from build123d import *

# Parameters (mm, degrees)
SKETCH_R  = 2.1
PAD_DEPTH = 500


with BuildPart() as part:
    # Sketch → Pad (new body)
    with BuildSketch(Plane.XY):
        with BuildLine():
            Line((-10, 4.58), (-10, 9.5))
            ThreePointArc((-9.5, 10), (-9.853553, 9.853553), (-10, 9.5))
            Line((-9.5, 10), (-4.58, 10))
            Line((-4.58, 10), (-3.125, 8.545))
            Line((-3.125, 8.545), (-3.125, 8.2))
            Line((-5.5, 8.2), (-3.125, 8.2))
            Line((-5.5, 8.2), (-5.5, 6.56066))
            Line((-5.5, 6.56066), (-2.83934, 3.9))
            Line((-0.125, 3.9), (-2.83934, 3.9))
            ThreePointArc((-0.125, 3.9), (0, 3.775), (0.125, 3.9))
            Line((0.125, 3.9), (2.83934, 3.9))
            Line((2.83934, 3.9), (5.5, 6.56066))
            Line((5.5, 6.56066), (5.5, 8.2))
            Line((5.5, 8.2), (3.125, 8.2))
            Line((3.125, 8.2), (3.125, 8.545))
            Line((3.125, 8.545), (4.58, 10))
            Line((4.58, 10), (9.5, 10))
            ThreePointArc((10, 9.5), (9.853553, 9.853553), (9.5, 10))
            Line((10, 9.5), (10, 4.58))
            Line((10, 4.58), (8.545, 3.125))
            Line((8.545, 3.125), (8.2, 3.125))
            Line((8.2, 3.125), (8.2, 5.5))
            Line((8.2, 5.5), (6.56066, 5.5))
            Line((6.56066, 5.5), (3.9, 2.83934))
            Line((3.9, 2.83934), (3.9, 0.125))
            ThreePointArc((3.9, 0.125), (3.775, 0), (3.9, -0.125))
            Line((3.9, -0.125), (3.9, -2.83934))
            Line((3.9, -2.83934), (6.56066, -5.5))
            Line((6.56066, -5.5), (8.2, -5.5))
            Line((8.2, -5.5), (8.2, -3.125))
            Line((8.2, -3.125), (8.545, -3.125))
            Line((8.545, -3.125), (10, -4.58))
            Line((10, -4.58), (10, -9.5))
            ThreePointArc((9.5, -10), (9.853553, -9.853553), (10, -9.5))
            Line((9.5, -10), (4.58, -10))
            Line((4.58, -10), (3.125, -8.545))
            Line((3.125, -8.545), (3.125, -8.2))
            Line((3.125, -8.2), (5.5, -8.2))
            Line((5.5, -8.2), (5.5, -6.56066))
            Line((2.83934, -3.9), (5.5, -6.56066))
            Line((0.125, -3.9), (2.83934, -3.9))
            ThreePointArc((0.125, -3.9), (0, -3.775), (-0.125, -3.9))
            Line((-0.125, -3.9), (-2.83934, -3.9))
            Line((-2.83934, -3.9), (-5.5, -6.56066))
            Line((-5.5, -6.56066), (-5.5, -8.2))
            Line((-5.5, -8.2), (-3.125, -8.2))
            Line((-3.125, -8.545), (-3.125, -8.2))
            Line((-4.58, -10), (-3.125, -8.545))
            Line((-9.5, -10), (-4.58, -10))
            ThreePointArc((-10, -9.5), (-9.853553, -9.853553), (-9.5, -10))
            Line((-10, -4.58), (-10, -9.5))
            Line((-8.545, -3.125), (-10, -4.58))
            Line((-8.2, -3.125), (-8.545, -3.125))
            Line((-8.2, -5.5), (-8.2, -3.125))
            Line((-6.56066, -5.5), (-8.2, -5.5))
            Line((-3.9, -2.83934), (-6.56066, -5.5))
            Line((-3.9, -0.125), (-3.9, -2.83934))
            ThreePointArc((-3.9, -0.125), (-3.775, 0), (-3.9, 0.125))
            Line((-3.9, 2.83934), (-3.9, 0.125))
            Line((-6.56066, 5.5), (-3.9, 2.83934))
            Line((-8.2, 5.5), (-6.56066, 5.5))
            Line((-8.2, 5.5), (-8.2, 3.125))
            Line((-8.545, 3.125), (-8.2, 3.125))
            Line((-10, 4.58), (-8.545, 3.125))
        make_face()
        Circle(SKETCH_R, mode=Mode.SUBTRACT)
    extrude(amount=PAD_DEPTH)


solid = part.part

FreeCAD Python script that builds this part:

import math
import FreeCAD as App
import Part
import Sketcher
from FreeCAD import Vector
Q = App.Units.Quantity

doc = App.newDocument("Part")
body = doc.addObject("PartDesign::Body", "Body")

# Sketch on XY plane
sketch1 = body.newObject("Sketcher::SketchObject", "Sketch")
sketch1.AttachmentSupport = (doc.getObject("XY_Plane"), [""])
sketch1.MapMode = "FlatFace"
sketch1.addGeometry(Part.LineSegment(Vector(-10, 9.5, 0), Vector(-10, 4.58, 0)), False)
sketch1.addGeometry(Part.LineSegment(Vector(-10, 4.58, 0), Vector(-8.54, 3.12, 0)), False)
sketch1.addGeometry(Part.LineSegment(Vector(-8.54, 3.12, 0), Vector(-8.2, 3.12, 0)), False)
sketch1.addGeometry(Part.LineSegment(Vector(-8.2, 3.12, 0), Vector(-8.2, 5.5, 0)), False)
sketch1.addGeometry(Part.LineSegment(Vector(-8.2, 5.5, 0), Vector(-6.56, 5.5, 0)), False)
sketch1.addGeometry(Part.LineSegment(Vector(-6.56, 5.5, 0), Vector(-3.9, 2.84, 0)), False)
sketch1.addGeometry(Part.LineSegment(Vector(-3.9, 2.84, 0), Vector(-3.9, 0.12, 0)), False)
sketch1.addGeometry(Part.ArcOfCircle(Part.Circle(Vector(-3.9, 0, 0), Vector(0, 0, 1), 0.12), math.radians(-90), math.radians(90)), False)
sketch1.addGeometry(Part.LineSegment(Vector(-3.9, -0.12, 0), Vector(-3.9, -2.84, 0)), False)
sketch1.addGeometry(Part.LineSegment(Vector(-3.9, -2.84, 0), Vector(-6.56, -5.5, 0)), False)
sketch1.addGeometry(Part.LineSegment(Vector(-6.56, -5.5, 0), Vector(-8.2, -5.5, 0)), False)
sketch1.addGeometry(Part.LineSegment(Vector(-8.2, -5.5, 0), Vector(-8.2, -3.12, 0)), False)
sketch1.addGeometry(Part.LineSegment(Vector(-8.2, -3.12, 0), Vector(-8.54, -3.12, 0)), False)
sketch1.addGeometry(Part.LineSegment(Vector(-8.54, -3.12, 0), Vector(-10, -4.58, 0)), False)
sketch1.addGeometry(Part.LineSegment(Vector(-10, -4.58, 0), Vector(-10, -9.5, 0)), False)
sketch1.addGeometry(Part.ArcOfCircle(Part.Circle(Vector(-9.5, -9.5, 0), Vector(0, 0, 1), 0.5), math.radians(-180), math.radians(-90)), False)
sketch1.addGeometry(Part.LineSegment(Vector(-9.5, -10, 0), Vector(-4.58, -10, 0)), False)
sketch1.addGeometry(Part.LineSegment(Vector(-4.58, -10, 0), Vector(-3.12, -8.54, 0)), False)
sketch1.addGeometry(Part.LineSegment(Vector(-3.12, -8.54, 0), Vector(-3.12, -8.2, 0)), False)
sketch1.addGeometry(Part.LineSegment(Vector(-3.12, -8.2, 0), Vector(-5.5, -8.2, 0)), False)
sketch1.addGeometry(Part.LineSegment(Vector(-5.5, -8.2, 0), Vector(-5.5, -6.56, 0)), False)
sketch1.addGeometry(Part.LineSegment(Vector(-5.5, -6.56, 0), Vector(-2.84, -3.9, 0)), False)
sketch1.addGeometry(Part.LineSegment(Vector(-2.84, -3.9, 0), Vector(-0.12, -3.9, 0)), False)
sketch1.addGeometry(Part.ArcOfCircle(Part.Circle(Vector(0, -3.9, 0), Vector(0, 0, 1), 0.12), math.radians(0), math.radians(180)), False)
sketch1.addGeometry(Part.LineSegment(Vector(0.12, -3.9, 0), Vector(2.84, -3.9, 0)), False)
sketch1.addGeometry(Part.LineSegment(Vector(2.84, -3.9, 0), Vector(5.5, -6.56, 0)), False)
sketch1.addGeometry(Part.LineSegment(Vector(5.5, -6.56, 0), Vector(5.5, -8.2, 0)), False)
sketch1.addGeometry(Part.LineSegment(Vector(5.5, -8.2, 0), Vector(3.12, -8.2, 0)), False)
sketch1.addGeometry(Part.LineSegment(Vector(3.12, -8.2, 0), Vector(3.12, -8.54, 0)), False)
sketch1.addGeometry(Part.LineSegment(Vector(3.12, -8.54, 0), Vector(4.58, -10, 0)), False)
sketch1.addGeometry(Part.LineSegment(Vector(4.58, -10, 0), Vector(9.5, -10, 0)), False)
sketch1.addGeometry(Part.ArcOfCircle(Part.Circle(Vector(9.5, -9.5, 0), Vector(0, 0, 1), 0.5), math.radians(-90), math.radians(0)), False)
sketch1.addGeometry(Part.LineSegment(Vector(10, -9.5, 0), Vector(10, -4.58, 0)), False)
sketch1.addGeometry(Part.LineSegment(Vector(10, -4.58, 0), Vector(8.54, -3.12, 0)), False)
sketch1.addGeometry(Part.LineSegment(Vector(8.54, -3.12, 0), Vector(8.2, -3.12, 0)), False)
sketch1.addGeometry(Part.LineSegment(Vector(8.2, -3.12, 0), Vector(8.2, -5.5, 0)), False)
sketch1.addGeometry(Part.LineSegment(Vector(8.2, -5.5, 0), Vector(6.56, -5.5, 0)), False)
sketch1.addGeometry(Part.LineSegment(Vector(6.56, -5.5, 0), Vector(3.9, -2.84, 0)), False)
sketch1.addGeometry(Part.LineSegment(Vector(3.9, -2.84, 0), Vector(3.9, -0.12, 0)), False)
sketch1.addGeometry(Part.ArcOfCircle(Part.Circle(Vector(3.9, 0, 0), Vector(0, 0, 1), 0.12), math.radians(90), math.radians(270)), False)
sketch1.addGeometry(Part.LineSegment(Vector(3.9, 0.12, 0), Vector(3.9, 2.84, 0)), False)
sketch1.addGeometry(Part.LineSegment(Vector(3.9, 2.84, 0), Vector(6.56, 5.5, 0)), False)
sketch1.addGeometry(Part.LineSegment(Vector(6.56, 5.5, 0), Vector(8.2, 5.5, 0)), False)
sketch1.addGeometry(Part.LineSegment(Vector(8.2, 5.5, 0), Vector(8.2, 3.12, 0)), False)
sketch1.addGeometry(Part.LineSegment(Vector(8.2, 3.12, 0), Vector(8.54, 3.12, 0)), False)
sketch1.addGeometry(Part.LineSegment(Vector(8.54, 3.12, 0), Vector(10, 4.58, 0)), False)
sketch1.addGeometry(Part.LineSegment(Vector(10, 4.58, 0), Vector(10, 9.5, 0)), False)
sketch1.addGeometry(Part.ArcOfCircle(Part.Circle(Vector(9.5, 9.5, 0), Vector(0, 0, 1), 0.5), math.radians(0), math.radians(90)), False)
sketch1.addGeometry(Part.LineSegment(Vector(9.5, 10, 0), Vector(4.58, 10, 0)), False)
sketch1.addGeometry(Part.LineSegment(Vector(4.58, 10, 0), Vector(3.12, 8.54, 0)), False)
sketch1.addGeometry(Part.LineSegment(Vector(3.12, 8.54, 0), Vector(3.12, 8.2, 0)), False)
sketch1.addGeometry(Part.LineSegment(Vector(3.12, 8.2, 0), Vector(5.5, 8.2, 0)), False)
sketch1.addGeometry(Part.LineSegment(Vector(5.5, 8.2, 0), Vector(5.5, 6.56, 0)), False)
sketch1.addGeometry(Part.LineSegment(Vector(5.5, 6.56, 0), Vector(2.84, 3.9, 0)), False)
sketch1.addGeometry(Part.LineSegment(Vector(2.84, 3.9, 0), Vector(0.12, 3.9, 0)), False)
sketch1.addGeometry(Part.ArcOfCircle(Part.Circle(Vector(0, 3.9, 0), Vector(0, 0, 1), 0.12), math.radians(180), math.radians(360)), False)
sketch1.addGeometry(Part.LineSegment(Vector(-0.12, 3.9, 0), Vector(-2.84, 3.9, 0)), False)
sketch1.addGeometry(Part.LineSegment(Vector(-2.84, 3.9, 0), Vector(-5.5, 6.56, 0)), False)
sketch1.addGeometry(Part.LineSegment(Vector(-5.5, 6.56, 0), Vector(-5.5, 8.2, 0)), False)
sketch1.addGeometry(Part.LineSegment(Vector(-5.5, 8.2, 0), Vector(-3.12, 8.2, 0)), False)
sketch1.addGeometry(Part.LineSegment(Vector(-3.12, 8.2, 0), Vector(-3.12, 8.54, 0)), False)
sketch1.addGeometry(Part.LineSegment(Vector(-3.12, 8.54, 0), Vector(-4.58, 10, 0)), False)
sketch1.addGeometry(Part.LineSegment(Vector(-4.58, 10, 0), Vector(-9.5, 10, 0)), False)
sketch1.addGeometry(Part.ArcOfCircle(Part.Circle(Vector(-9.5, 9.5, 0), Vector(0, 0, 1), 0.5), math.radians(90), math.radians(180)), False)
sketch1.addGeometry(Part.Circle(Vector(0, 0, 0), Vector(0, 0, 1), 2.1), False)
sketch1.addConstraint(Sketcher.Constraint("Coincident", 0, 2, 1, 1))
sketch1.addConstraint(Sketcher.Constraint("Coincident", 1, 2, 2, 1))
sketch1.addConstraint(Sketcher.Constraint("Coincident", 2, 2, 3, 1))
sketch1.addConstraint(Sketcher.Constraint("Coincident", 3, 2, 4, 1))
sketch1.addConstraint(Sketcher.Constraint("Coincident", 4, 2, 5, 1))
sketch1.addConstraint(Sketcher.Constraint("Coincident", 5, 2, 6, 1))
sketch1.addConstraint(Sketcher.Constraint("Coincident", 6, 2, 7, 2))
sketch1.addConstraint(Sketcher.Constraint("Coincident", 7, 1, 8, 1))
sketch1.addConstraint(Sketcher.Constraint("Coincident", 8, 2, 9, 1))
sketch1.addConstraint(Sketcher.Constraint("Coincident", 9, 2, 10, 1))
sketch1.addConstraint(Sketcher.Constraint("Coincident", 10, 2, 11, 1))
sketch1.addConstraint(Sketcher.Constraint("Coincident", 11, 2, 12, 1))
sketch1.addConstraint(Sketcher.Constraint("Coincident", 12, 2, 13, 1))
sketch1.addConstraint(Sketcher.Constraint("Coincident", 13, 2, 14, 1))
sketch1.addConstraint(Sketcher.Constraint("Coincident", 14, 2, 15, 1))
sketch1.addConstraint(Sketcher.Constraint("Coincident", 15, 2, 16, 1))
sketch1.addConstraint(Sketcher.Constraint("Coincident", 16, 2, 17, 1))
sketch1.addConstraint(Sketcher.Constraint("Coincident", 17, 2, 18, 1))
sketch1.addConstraint(Sketcher.Constraint("Coincident", 18, 2, 19, 1))
sketch1.addConstraint(Sketcher.Constraint("Coincident", 19, 2, 20, 1))
sketch1.addConstraint(Sketcher.Constraint("Coincident", 20, 2, 21, 1))
sketch1.addConstraint(Sketcher.Constraint("Coincident", 21, 2, 22, 1))
sketch1.addConstraint(Sketcher.Constraint("Coincident", 22, 2, 23, 2))
sketch1.addConstraint(Sketcher.Constraint("Coincident", 23, 1, 24, 1))
sketch1.addConstraint(Sketcher.Constraint("Coincident", 24, 2, 25, 1))
sketch1.addConstraint(Sketcher.Constraint("Coincident", 25, 2, 26, 1))
sketch1.addConstraint(Sketcher.Constraint("Coincident", 26, 2, 27, 1))
sketch1.addConstraint(Sketcher.Constraint("Coincident", 27, 2, 28, 1))
sketch1.addConstraint(Sketcher.Constraint("Coincident", 28, 2, 29, 1))
sketch1.addConstraint(Sketcher.Constraint("Coincident", 29, 2, 30, 1))
sketch1.addConstraint(Sketcher.Constraint("Coincident", 30, 2, 31, 1))
sketch1.addConstraint(Sketcher.Constraint("Coincident", 31, 2, 32, 1))
sketch1.addConstraint(Sketcher.Constraint("Coincident", 32, 2, 33, 1))
sketch1.addConstraint(Sketcher.Constraint("Coincident", 33, 2, 34, 1))
sketch1.addConstraint(Sketcher.Constraint("Coincident", 34, 2, 35, 1))
sketch1.addConstraint(Sketcher.Constraint("Coincident", 35, 2, 36, 1))
sketch1.addConstraint(Sketcher.Constraint("Coincident", 36, 2, 37, 1))
sketch1.addConstraint(Sketcher.Constraint("Coincident", 37, 2, 38, 1))
sketch1.addConstraint(Sketcher.Constraint("Coincident", 38, 2, 39, 2))
sketch1.addConstraint(Sketcher.Constraint("Coincident", 39, 1, 40, 1))
sketch1.addConstraint(Sketcher.Constraint("Coincident", 40, 2, 41, 1))
sketch1.addConstraint(Sketcher.Constraint("Coincident", 41, 2, 42, 1))
sketch1.addConstraint(Sketcher.Constraint("Coincident", 42, 2, 43, 1))
sketch1.addConstraint(Sketcher.Constraint("Coincident", 43, 2, 44, 1))
sketch1.addConstraint(Sketcher.Constraint("Coincident", 44, 2, 45, 1))
sketch1.addConstraint(Sketcher.Constraint("Coincident", 45, 2, 46, 1))
sketch1.addConstraint(Sketcher.Constraint("Coincident", 46, 2, 47, 1))
sketch1.addConstraint(Sketcher.Constraint("Coincident", 47, 2, 48, 1))
sketch1.addConstraint(Sketcher.Constraint("Coincident", 48, 2, 49, 1))
sketch1.addConstraint(Sketcher.Constraint("Coincident", 49, 2, 50, 1))
sketch1.addConstraint(Sketcher.Constraint("Coincident", 50, 2, 51, 1))
sketch1.addConstraint(Sketcher.Constraint("Coincident", 51, 2, 52, 1))
sketch1.addConstraint(Sketcher.Constraint("Coincident", 52, 2, 53, 1))
sketch1.addConstraint(Sketcher.Constraint("Coincident", 53, 2, 54, 1))
sketch1.addConstraint(Sketcher.Constraint("Coincident", 54, 2, 55, 2))
sketch1.addConstraint(Sketcher.Constraint("Coincident", 55, 1, 56, 1))
sketch1.addConstraint(Sketcher.Constraint("Coincident", 56, 2, 57, 1))
sketch1.addConstraint(Sketcher.Constraint("Coincident", 57, 2, 58, 1))
sketch1.addConstraint(Sketcher.Constraint("Coincident", 58, 2, 59, 1))
sketch1.addConstraint(Sketcher.Constraint("Coincident", 59, 2, 60, 1))
sketch1.addConstraint(Sketcher.Constraint("Coincident", 60, 2, 61, 1))
sketch1.addConstraint(Sketcher.Constraint("Coincident", 61, 2, 62, 1))
sketch1.addConstraint(Sketcher.Constraint("Coincident", 62, 2, 63, 1))
sketch1.addConstraint(Sketcher.Constraint("Coincident", 63, 2, 0, 1))
sketch1.addConstraint(Sketcher.Constraint("Vertical", 0))
sketch1.addConstraint(Sketcher.Constraint("Horizontal", 2))
sketch1.addConstraint(Sketcher.Constraint("Vertical", 3))
sketch1.addConstraint(Sketcher.Constraint("Horizontal", 4))
sketch1.addConstraint(Sketcher.Constraint("Vertical", 6))
sketch1.addConstraint(Sketcher.Constraint("Vertical", 8))
sketch1.addConstraint(Sketcher.Constraint("Horizontal", 10))
sketch1.addConstraint(Sketcher.Constraint("Vertical", 11))
sketch1.addConstraint(Sketcher.Constraint("Horizontal", 12))
sketch1.addConstraint(Sketcher.Constraint("Vertical", 14))
sketch1.addConstraint(Sketcher.Constraint("Horizontal", 16))
sketch1.addConstraint(Sketcher.Constraint("Vertical", 18))
sketch1.addConstraint(Sketcher.Constraint("Horizontal", 19))
sketch1.addConstraint(Sketcher.Constraint("Vertical", 20))
sketch1.addConstraint(Sketcher.Constraint("Horizontal", 22))
sketch1.addConstraint(Sketcher.Constraint("Horizontal", 24))
sketch1.addConstraint(Sketcher.Constraint("Vertical", 26))
sketch1.addConstraint(Sketcher.Constraint("Horizontal", 27))
sketch1.addConstraint(Sketcher.Constraint("Vertical", 28))
sketch1.addConstraint(Sketcher.Constraint("Horizontal", 30))
sketch1.addConstraint(Sketcher.Constraint("Vertical", 32))
sketch1.addConstraint(Sketcher.Constraint("Horizontal", 34))
sketch1.addConstraint(Sketcher.Constraint("Vertical", 35))
sketch1.addConstraint(Sketcher.Constraint("Horizontal", 36))
sketch1.addConstraint(Sketcher.Constraint("Vertical", 38))
sketch1.addConstraint(Sketcher.Constraint("Vertical", 40))
sketch1.addConstraint(Sketcher.Constraint("Horizontal", 42))
sketch1.addConstraint(Sketcher.Constraint("Vertical", 43))
sketch1.addConstraint(Sketcher.Constraint("Horizontal", 44))
sketch1.addConstraint(Sketcher.Constraint("Vertical", 46))
sketch1.addConstraint(Sketcher.Constraint("Horizontal", 48))
sketch1.addConstraint(Sketcher.Constraint("Vertical", 50))
sketch1.addConstraint(Sketcher.Constraint("Horizontal", 51))
sketch1.addConstraint(Sketcher.Constraint("Vertical", 52))
sketch1.addConstraint(Sketcher.Constraint("Horizontal", 54))
sketch1.addConstraint(Sketcher.Constraint("Horizontal", 56))
sketch1.addConstraint(Sketcher.Constraint("Vertical", 58))
sketch1.addConstraint(Sketcher.Constraint("Horizontal", 59))
sketch1.addConstraint(Sketcher.Constraint("Vertical", 60))
sketch1.addConstraint(Sketcher.Constraint("Horizontal", 62))
sketch1.addConstraint(Sketcher.Constraint("Coincident", 64, 3, -1, 1))
sketch1.addConstraint(Sketcher.Constraint("Equal", 7, 23))
sketch1.addConstraint(Sketcher.Constraint("Equal", 15, 31))
sketch1.addConstraint(Sketcher.Constraint("Equal", 23, 39))
sketch1.addConstraint(Sketcher.Constraint("Equal", 31, 47))
sketch1.addConstraint(Sketcher.Constraint("Equal", 39, 55))
sketch1.addConstraint(Sketcher.Constraint("Equal", 47, 63))
sketch1.addConstraint(Sketcher.Constraint("Symmetric", 7, 3, 39, 3, -1, 1))
sketch1.addConstraint(Sketcher.Constraint("Symmetric", 15, 3, 47, 3, -1, 1))
sketch1.addConstraint(Sketcher.Constraint("Symmetric", 23, 3, 55, 3, -1, 1))
sketch1.addConstraint(Sketcher.Constraint("Symmetric", 31, 3, 63, 3, -1, 1))
sketch1.addConstraint(Sketcher.Constraint("Symmetric", 1, 2, 33, 2, -1, 1))
sketch1.addConstraint(Sketcher.Constraint("Symmetric", 3, 2, 35, 2, -1, 1))
sketch1.addConstraint(Sketcher.Constraint("Symmetric", 5, 2, 37, 2, -1, 1))
sketch1.addConstraint(Sketcher.Constraint("Symmetric", 8, 2, 40, 2, -1, 1))
sketch1.addConstraint(Sketcher.Constraint("Symmetric", 9, 2, 41, 2, -1, 1))
sketch1.addConstraint(Sketcher.Constraint("Symmetric", 11, 2, 43, 2, -1, 1))
sketch1.addConstraint(Sketcher.Constraint("Symmetric", 17, 2, 49, 2, -1, 1))
sketch1.addConstraint(Sketcher.Constraint("Symmetric", 19, 2, 51, 2, -1, 1))
sketch1.addConstraint(Sketcher.Constraint("Symmetric", 21, 2, 53, 2, -1, 1))
sketch1.addConstraint(Sketcher.Constraint("Symmetric", 24, 2, 56, 2, -1, 1))
sketch1.addConstraint(Sketcher.Constraint("Symmetric", 25, 2, 57, 2, -1, 1))
sketch1.addConstraint(Sketcher.Constraint("Symmetric", 27, 2, 59, 2, -1, 1))
sketch1.addConstraint(Sketcher.Constraint("Symmetric", 15, 3, 31, 3, -2))
sketch1.addConstraint(Sketcher.Constraint("Symmetric", 22, 2, 23, 1, -2))
sketch1.addConstraint(Sketcher.Constraint("Symmetric", 20, 2, 25, 2, -2))
sketch1.addConstraint(Sketcher.Constraint("Symmetric", 18, 2, 27, 2, -2))
sketch1.addConstraint(Sketcher.Constraint("Symmetric", 12, 2, 33, 2, -2))
sketch1.addConstraint(Sketcher.Constraint("Symmetric", 10, 2, 35, 2, -2))
sketch1.addConstraint(Sketcher.Constraint("Symmetric", 8, 2, 37, 2, -2))
sketch1.addConstraint(Sketcher.Constraint("PointOnObject", 7, 3, -1))
sketch1.addConstraint(Sketcher.Constraint("Parallel", 1, 5))
sketch1.addConstraint(Sketcher.Constraint("Perpendicular", 5, 9))
sketch1.addConstraint(Sketcher.Constraint("Parallel", 9, 13))
sketch1.addConstraint(Sketcher.Constraint("Parallel", 13, 17))
sketch1.addConstraint(Sketcher.Constraint("Parallel", 17, 21))
sketch1.addConstraint(Sketcher.Constraint("Perpendicular", 21, 25))
sketch1.addConstraint(Sketcher.Constraint("Parallel", 25, 29))
sketch1.addConstraint(Sketcher.Constraint("Parallel", 29, 33))
sketch1.addConstraint(Sketcher.Constraint("Parallel", 33, 37))
sketch1.addConstraint(Sketcher.Constraint("Parallel", 41, 45))
sketch1.addConstraint(Sketcher.Constraint("Parallel", 45, 49))
sketch1.addConstraint(Sketcher.Constraint("Parallel", 49, 53))
sketch1.addConstraint(Sketcher.Constraint("Parallel", 57, 61))
sketch1.addConstraint(Sketcher.Constraint("Horizontal", 31, 3, 14, 2))
sketch1.addConstraint(Sketcher.Constraint("Horizontal", 23, 3, 21, 2))
sketch1.addConstraint(Sketcher.Constraint("Horizontal", 17, 2, 28, 2))
sketch1.addConstraint(Sketcher.Constraint("Horizontal", 14, 2, 31, 2))
sketch1.addConstraint(Sketcher.Constraint("Horizontal", 13, 2, 32, 2))
sketch1.addConstraint(Sketcher.Constraint("Horizontal", 0, 2, 45, 2))
sketch1.addConstraint(Sketcher.Constraint("Horizontal", 63, 3, 46, 2))
sketch1.addConstraint(Sketcher.Constraint("Horizontal", 49, 2, 60, 2))
sketch1.addConstraint(Sketcher.Constraint("Horizontal", 46, 2, 63, 2))
sketch1.addConstraint(Sketcher.Constraint("Vertical", 7, 3, 5, 2))
sketch1.addConstraint(Sketcher.Constraint("Vertical", 63, 3, 15, 2))
sketch1.addConstraint(Sketcher.Constraint("Vertical", 47, 3, 30, 2))
sketch1.addConstraint(Sketcher.Constraint("Vertical", 30, 2, 47, 2))
sketch1.addConstraint(Sketcher.Constraint("Vertical", 15, 2, 62, 2))
sketch1.addConstraint(Sketcher.Constraint("Equal", 62, 0))
sketch1.addConstraint(Sketcher.Constraint("Equal", 59, 3))
sketch1.addConstraint(Sketcher.Constraint("Equal", 56, 6))
sketch1.addConstraint(Sketcher.Constraint("Equal", 44, 18))
sketch1.addConstraint(Sketcher.Constraint("Equal", 42, 20))
sketch1.addConstraint(Sketcher.Constraint("Equal", 13, 17))
sketch1.addConstraint(Sketcher.Constraint("Equal", 9, 21))
sketch1.addConstraint(Sketcher.Constraint("Diameter", 64, Q("4.2 mm")))
sketch1.addConstraint(Sketcher.Constraint("Radius", 15, Q("0.500001 mm")))
sketch1.addConstraint(Sketcher.Constraint("DistanceX", 0, 2, -1, 1, Q("10 mm")))
sketch1.addConstraint(Sketcher.Constraint("Radius", 7, Q("0.125 mm")))
sketch1.addConstraint(Sketcher.Constraint("DistanceX", 16, 1, 16, 2, Q("4.92 mm")))
sketch1.addConstraint(Sketcher.Constraint("DistanceX", 7, 3, -1, 1, Q("3.9 mm")))
sketch1.addConstraint(Sketcher.Constraint("DistanceX", 2, 2, -1, 1, Q("8.2 mm")))
sketch1.addConstraint(Sketcher.Constraint("DistanceY", -1, 1, 3, 2, Q("5.5 mm")))
sketch1.addConstraint(Sketcher.Constraint("DistanceX", 2, 1, 2, 2, Q("0.345 mm")))
sketch1.addConstraint(Sketcher.Constraint("DistanceX", 4, 1, 4, 2, Q("1.63934 mm")))
pad1 = body.newObject("PartDesign::Pad", "Pad")
pad1.Profile = sketch1
pad1.Length = 500

doc.recompute()
